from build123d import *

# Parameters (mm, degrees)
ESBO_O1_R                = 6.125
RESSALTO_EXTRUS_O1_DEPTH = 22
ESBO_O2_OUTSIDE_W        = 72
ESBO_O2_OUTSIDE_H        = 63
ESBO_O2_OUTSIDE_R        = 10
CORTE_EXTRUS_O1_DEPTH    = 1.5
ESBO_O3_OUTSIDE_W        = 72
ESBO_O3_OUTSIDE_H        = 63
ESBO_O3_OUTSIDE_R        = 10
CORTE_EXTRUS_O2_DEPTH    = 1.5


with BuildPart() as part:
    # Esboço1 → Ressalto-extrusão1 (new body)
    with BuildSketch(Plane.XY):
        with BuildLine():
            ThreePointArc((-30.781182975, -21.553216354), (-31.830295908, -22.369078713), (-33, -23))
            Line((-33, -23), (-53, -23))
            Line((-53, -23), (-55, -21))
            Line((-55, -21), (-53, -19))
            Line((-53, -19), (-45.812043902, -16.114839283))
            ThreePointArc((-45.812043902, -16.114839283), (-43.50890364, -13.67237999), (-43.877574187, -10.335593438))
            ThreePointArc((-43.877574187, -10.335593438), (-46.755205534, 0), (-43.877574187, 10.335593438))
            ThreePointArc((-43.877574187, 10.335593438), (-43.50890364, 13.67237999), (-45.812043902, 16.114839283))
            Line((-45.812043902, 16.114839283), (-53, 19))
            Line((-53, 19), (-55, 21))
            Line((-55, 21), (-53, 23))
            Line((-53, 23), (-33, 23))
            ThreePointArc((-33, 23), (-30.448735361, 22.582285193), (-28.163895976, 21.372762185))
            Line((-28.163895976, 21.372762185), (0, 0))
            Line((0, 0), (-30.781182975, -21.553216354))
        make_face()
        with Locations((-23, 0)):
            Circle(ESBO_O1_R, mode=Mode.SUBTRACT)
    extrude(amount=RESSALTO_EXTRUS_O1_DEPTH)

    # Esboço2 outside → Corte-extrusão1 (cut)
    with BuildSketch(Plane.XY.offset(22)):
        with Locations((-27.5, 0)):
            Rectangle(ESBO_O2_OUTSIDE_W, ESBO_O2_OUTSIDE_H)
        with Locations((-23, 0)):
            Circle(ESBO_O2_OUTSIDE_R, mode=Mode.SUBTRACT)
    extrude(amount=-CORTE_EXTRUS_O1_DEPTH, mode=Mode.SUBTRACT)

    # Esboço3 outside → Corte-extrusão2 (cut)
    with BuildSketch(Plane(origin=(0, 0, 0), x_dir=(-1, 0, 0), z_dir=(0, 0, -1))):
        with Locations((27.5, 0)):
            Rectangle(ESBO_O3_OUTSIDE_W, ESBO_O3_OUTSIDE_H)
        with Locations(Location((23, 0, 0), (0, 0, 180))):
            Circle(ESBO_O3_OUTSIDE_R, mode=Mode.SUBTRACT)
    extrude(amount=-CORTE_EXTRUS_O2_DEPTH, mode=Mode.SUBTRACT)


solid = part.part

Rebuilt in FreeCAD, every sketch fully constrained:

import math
import FreeCAD as App
import Part
import Sketcher
from FreeCAD import Vector
Q = App.Units.Quantity

doc = App.newDocument("Part")
body = doc.addObject("PartDesign::Body", "Body")

# Sketch on XY plane
sketch1 = body.newObject("Sketcher::SketchObject", "Sketch")
sketch1.AttachmentSupport = (doc.getObject("XY_Plane"), [""])
sketch1.MapMode = "FlatFace"
sketch1.addGeometry([
    Part.ArcOfCircle(Part.Circle(Vector(-36.2, -15.7, 0), Vector(0, 0, 1), 8), math.radians(-66.42), math.radians(-47.36)),  # 0
    Part.LineSegment(Vector(-30.8, -21.6, 0), Vector(0, 0, 0)),  # 1
    Part.LineSegment(Vector(0, 0, 0), Vector(-28.2, 21.4, 0)),  # 2
    Part.ArcOfCircle(Part.Circle(Vector(-33, 15, 0), Vector(0, 0, 1), 8), math.radians(53), math.radians(90)),  # 3
    Part.LineSegment(Vector(-33, 23, 0), Vector(-53, 23, 0)),  # 4
    Part.LineSegment(Vector(-53, 23, 0), Vector(-55, 21, 0)),  # 5
    Part.LineSegment(Vector(-55, 21, 0), Vector(-53, 19, 0)),  # 6
    Part.LineSegment(Vector(-53, 19, 0), Vector(-45.8, 16.1, 0)),  # 7
    Part.ArcOfCircle(Part.Circle(Vector(-47.3, 12.4, 0), Vector(0, 0, 1), 4), math.radians(-31), math.radians(68)),  # 8
    Part.ArcOfCircle(Part.Circle(Vector(-26.8, 0, 0), Vector(0, 0, 1), 20), math.radians(149), math.radians(211)),  # 9
    Part.ArcOfCircle(Part.Circle(Vector(-47.3, -12.4, 0), Vector(0, 0, 1), 4), math.radians(-68), math.radians(31)),  # 10
    Part.LineSegment(Vector(-45.8, -16.1, 0), Vector(-53, -19, 0)),  # 11
    Part.LineSegment(Vector(-53, -19, 0), Vector(-55, -21, 0)),  # 12
    Part.LineSegment(Vector(-55, -21, 0), Vector(-53, -23, 0)),  # 13
    Part.LineSegment(Vector(-53, -23, 0), Vector(-33, -23, 0)),  # 14
    Part.Circle(Vector(-23, 0, 0), Vector(0, 0, 1), 6.1),  # 15
], False)
sketch1.addConstraint([
    Sketcher.Constraint("Coincident", 0, 2, 1, 1),
    Sketcher.Constraint("Coincident", 1, 2, 2, 1),
    Sketcher.Constraint("Tangent", 2, 2, 3, 1),
    Sketcher.Constraint("Tangent", 3, 2, 4, 1),
    Sketcher.Constraint("Coincident", 4, 2, 5, 1),
    Sketcher.Constraint("Coincident", 5, 2, 6, 1),
    Sketcher.Constraint("Coincident", 6, 2, 7, 1),
    Sketcher.Constraint("Tangent", 7, 2, 8, 2),
    Sketcher.Constraint("Tangent", 8, 1, 9, 1),
    Sketcher.Constraint("Tangent", 9, 2, 10, 2),
    Sketcher.Constraint("Tangent", 10, 1, 11, 1),
    Sketcher.Constraint("Coincident", 11, 2, 12, 1),
    Sketcher.Constraint("Coincident", 12, 2, 13, 1),
    Sketcher.Constraint("Coincident", 13, 2, 14, 1),
    Sketcher.Constraint("Coincident", 14, 2, 0, 1),
    Sketcher.Constraint("Horizontal", 4),
    Sketcher.Constraint("Horizontal", 14),
    Sketcher.Constraint("Coincident", 1, 2, -1, 1),
    Sketcher.Constraint("Equal", 0, 3),
    Sketcher.Constraint("Equal", 8, 10),
    Sketcher.Constraint("Symmetric", 8, 3, 10, 3, -1),
    Sketcher.Constraint("Symmetric", 6, 2, 11, 2, -1),
    Sketcher.Constraint("Symmetric", 5, 2, 12, 2, -1),
    Sketcher.Constraint("Symmetric", 4, 2, 13, 2, -1),
    Sketcher.Constraint("PointOnObject", 15, 3, -1),
    Sketcher.Constraint("Perpendicular", 5, 6),
    Sketcher.Constraint("Perpendicular", 6, 12),
    Sketcher.Constraint("Vertical", 4, 2, 6, 2),
    Sketcher.Constraint("Vertical", 3, 2, 14, 2),
    Sketcher.Constraint("Radius", 0, 8.0),
    Sketcher.Constraint("Radius", 8, 4.0),
    Sketcher.Constraint("Radius", 9, 20.0),
    Sketcher.Constraint("Diameter", 15, 12.25),
    Sketcher.Constraint("DistanceX", 4, 2, 4, 1, 20.0),
    Sketcher.Constraint("Angle", 1, Q("35 deg")),
    Sketcher.Constraint("DistanceX", 3, 3, -1, 1, 33.0),
    Sketcher.Constraint("DistanceY", -1, 1, 3, 3, 15.0),
    Sketcher.Constraint("DistanceX", 15, 3, -1, 1, 23.0),
    Sketcher.Constraint("DistanceX", 5, 2, -1, 1, 55.0),
    Sketcher.Constraint("DistanceY", 0, 3, -1, 1, 15.66782),
    Sketcher.Constraint("DistanceY", -1, 1, 7, 2, 16.114839),
    Sketcher.Constraint("DistanceY", 0, 3, 8, 3, 28.070532),
])
pad1 = body.newObject("PartDesign::Pad", "Pad")
pad1.Profile = sketch1
pad1.Length = 22

# Sketch on XY plane
sketch2 = body.newObject("Sketcher::SketchObject", "Sketch001")
sketch2.AttachmentSupport = (doc.getObject("XY_Plane"), [""])
sketch2.MapMode = "FlatFace"
sketch2.AttachmentOffset = App.Placement(Vector(0, 0, 22), App.Rotation())
sketch2.addGeometry([
    Part.LineSegment(Vector(-64, 32, 0), Vector(-64, -32, 0)),  # 0
    Part.LineSegment(Vector(-64, -32, 0), Vector(8, -32, 0)),  # 1
    Part.LineSegment(Vector(8, -32, 0), Vector(8, 32, 0)),  # 2
    Part.LineSegment(Vector(8, 32, 0), Vector(-64, 32, 0)),  # 3
    Part.Circle(Vector(-23, 0, 0), Vector(0, 0, 1), 10),  # 4
], False)
sketch2.addConstraint([
    Sketcher.Constraint("Coincident", 0, 2, 1, 1),
    Sketcher.Constraint("Coincident", 1, 2, 2, 1),
    Sketcher.Constraint("Coincident", 2, 2, 3, 1),
    Sketcher.Constraint("Coincident", 3, 2, 0, 1),
    Sketcher.Constraint("Vertical", 0),
    Sketcher.Constraint("Horizontal", 1),
    Sketcher.Constraint("Vertical", 2),
    Sketcher.Constraint("Horizontal", 3),
    Sketcher.Constraint("PointOnObject", 4, 3, -1),
    Sketcher.Constraint("Diameter", 4, 20.0),
    Sketcher.Constraint("DistanceX", 1, 1, 1, 2, 72.0),
    Sketcher.Constraint("DistanceY", 0, 2, 0, 1, 63.0),
    Sketcher.Constraint("DistanceX", 4, 3, -1, 1, 23.0),
    Sketcher.Constraint("DistanceX", 0, 2, -1, 1, 63.5),
    Sketcher.Constraint("DistanceY", 0, 2, -1, 1, 31.5),
])
pocket1 = body.newObject("PartDesign::Pocket", "Pocket")
pocket1.Profile = sketch2
pocket1.Length = 1.5

# Sketch on XY plane
sketch3 = body.newObject("Sketcher::SketchObject", "Sketch002")
sketch3.AttachmentSupport = (doc.getObject("XY_Plane"), [""])
sketch3.MapMode = "FlatFace"
sketch3.addGeometry([
    Part.LineSegment(Vector(8, 32, 0), Vector(8, -32, 0)),  # 0
    Part.LineSegment(Vector(8, -32, 0), Vector(-64, -32, 0)),  # 1
    Part.LineSegment(Vector(-64, -32, 0), Vector(-64, 32, 0)),  # 2
    Part.LineSegment(Vector(-64, 32, 0), Vector(8, 32, 0)),  # 3
    Part.Circle(Vector(-23, 0, 0), Vector(0, 0, 1), 10),  # 4
], False)
sketch3.addConstraint([
    Sketcher.Constraint("Coincident", 0, 2, 1, 1),
    Sketcher.Constraint("Coincident", 1, 2, 2, 1),
    Sketcher.Constraint("Coincident", 2, 2, 3, 1),
    Sketcher.Constraint("Coincident", 3, 2, 0, 1),
    Sketcher.Constraint("Vertical", 0),
    Sketcher.Constraint("Horizontal", 1),
    Sketcher.Constraint("Vertical", 2),
    Sketcher.Constraint("Horizontal", 3),
    Sketcher.Constraint("PointOnObject", 4, 3, -1),
    Sketcher.Constraint("Diameter", 4, 20.0),
    Sketcher.Constraint("DistanceX", 1, 2, 1, 1, 72.0),
    Sketcher.Constraint("DistanceY", 0, 2, 0, 1, 63.0),
    Sketcher.Constraint("DistanceX", 4, 3, -1, 1, 23.0),
    Sketcher.Constraint("DistanceX", -1, 1, 0, 2, 8.5),
    Sketcher.Constraint("DistanceY", 0, 2, -1, 1, 31.5),
])
pocket2 = body.newObject("PartDesign::Pocket", "Pocket001")
pocket2.Profile = sketch3
pocket2.Length = 1.5
pocket2.Reversed = True

doc.recompute()
